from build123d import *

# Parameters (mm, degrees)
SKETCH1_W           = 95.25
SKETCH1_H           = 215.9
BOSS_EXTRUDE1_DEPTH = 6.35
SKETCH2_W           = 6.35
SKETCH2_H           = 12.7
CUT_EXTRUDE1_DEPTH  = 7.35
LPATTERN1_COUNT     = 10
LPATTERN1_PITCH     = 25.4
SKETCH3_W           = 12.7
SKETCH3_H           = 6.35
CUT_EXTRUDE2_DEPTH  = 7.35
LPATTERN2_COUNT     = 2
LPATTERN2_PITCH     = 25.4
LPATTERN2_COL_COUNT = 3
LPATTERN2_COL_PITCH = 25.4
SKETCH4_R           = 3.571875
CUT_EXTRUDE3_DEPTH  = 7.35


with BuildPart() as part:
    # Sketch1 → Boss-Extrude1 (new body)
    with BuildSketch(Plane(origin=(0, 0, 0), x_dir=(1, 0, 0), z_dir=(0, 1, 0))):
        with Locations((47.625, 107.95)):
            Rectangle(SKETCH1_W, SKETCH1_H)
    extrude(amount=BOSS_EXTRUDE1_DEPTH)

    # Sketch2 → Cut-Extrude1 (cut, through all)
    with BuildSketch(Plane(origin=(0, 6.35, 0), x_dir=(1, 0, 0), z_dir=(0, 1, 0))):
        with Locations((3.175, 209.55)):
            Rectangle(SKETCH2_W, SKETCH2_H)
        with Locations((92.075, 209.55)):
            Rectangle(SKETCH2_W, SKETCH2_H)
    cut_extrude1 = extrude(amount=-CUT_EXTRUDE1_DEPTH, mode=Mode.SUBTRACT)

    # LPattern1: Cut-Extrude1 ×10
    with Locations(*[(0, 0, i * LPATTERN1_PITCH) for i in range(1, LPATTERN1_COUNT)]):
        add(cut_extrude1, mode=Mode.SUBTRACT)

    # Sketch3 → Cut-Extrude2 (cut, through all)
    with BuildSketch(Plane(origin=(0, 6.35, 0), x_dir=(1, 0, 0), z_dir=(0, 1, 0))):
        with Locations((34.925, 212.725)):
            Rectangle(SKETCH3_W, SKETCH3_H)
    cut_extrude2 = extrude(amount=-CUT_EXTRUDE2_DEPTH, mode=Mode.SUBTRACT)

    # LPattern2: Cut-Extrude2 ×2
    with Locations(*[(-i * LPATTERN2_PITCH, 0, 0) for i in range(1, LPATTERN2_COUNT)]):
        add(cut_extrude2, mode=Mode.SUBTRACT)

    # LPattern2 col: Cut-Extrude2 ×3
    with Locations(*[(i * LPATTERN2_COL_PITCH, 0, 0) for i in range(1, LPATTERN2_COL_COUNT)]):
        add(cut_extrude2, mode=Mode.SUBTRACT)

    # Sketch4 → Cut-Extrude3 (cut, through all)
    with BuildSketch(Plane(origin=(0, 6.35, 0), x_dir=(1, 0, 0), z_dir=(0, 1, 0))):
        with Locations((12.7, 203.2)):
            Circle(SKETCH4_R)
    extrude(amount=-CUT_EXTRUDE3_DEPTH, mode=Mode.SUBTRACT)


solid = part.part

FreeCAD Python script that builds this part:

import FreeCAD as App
import Part
import Sketcher
Q = App.Units.Quantity

doc = App.newDocument("Part")
body = doc.addObject("PartDesign::Body", "Body")

# Sketch on XZ plane
sketch1 = doc.addObject("Sketcher::SketchObject", "Sketch")
body.addObject(sketch1)
sketch1.AttachmentSupport = (doc.XZ_Plane, [""])
sketch1.MapMode = "FlatFace"
sketch1.addGeometry([
    Part.LineSegment(App.Vector(0, -215.9, 0), App.Vector(0, 0, 0)),
    Part.LineSegment(App.Vector(0, 0, 0), App.Vector(95.25, 0, 0)),
    Part.LineSegment(App.Vector(95.25, 0, 0), App.Vector(95.25, -215.9, 0)),
    Part.LineSegment(App.Vector(95.25, -215.9, 0), App.Vector(0, -215.9, 0)),
], False)
sketch1.addConstraint([
    Sketcher.Constraint("Coincident", 0, 2, 1, 1),
    Sketcher.Constraint("Coincident", 1, 2, 2, 1),
    Sketcher.Constraint("Coincident", 2, 2, 3, 1),
    Sketcher.Constraint("Coincident", 3, 2, 0, 1),
    Sketcher.Constraint("Vertical", 0),
    Sketcher.Constraint("Horizontal", 1),
    Sketcher.Constraint("Vertical", 2),
    Sketcher.Constraint("Horizontal", 3),
    Sketcher.Constraint("Coincident", 0, 2, -1, 1),
    Sketcher.Constraint("DistanceY", 0, 1, 0, 2, Q("8.5 in")),
    Sketcher.Constraint("DistanceX", 1, 1, 1, 2, Q("3.75 in")),
])
pad1 = doc.addObject("PartDesign::Pad", "Pad")
body.addObject(pad1)
pad1.Profile = sketch1
pad1.Length = Q("0.25 in")
pad1.Reversed = True

# Sketch on XZ plane
sketch2 = doc.addObject("Sketcher::SketchObject", "Sketch001")
body.addObject(sketch2)
sketch2.AttachmentSupport = (doc.XZ_Plane, [""])
sketch2.MapMode = "FlatFace"
sketch2.AttachmentOffset = App.Placement(App.Vector(0, 0, -0.25 * 25.4), App.Rotation())
sketch2.addGeometry([
    Part.LineSegment(App.Vector(0, -215.9, 0), App.Vector(0, -203.2, 0)),  # 0
    Part.LineSegment(App.Vector(0, -203.2, 0), App.Vector(6.35, -203.2, 0)),  # 1
    Part.LineSegment(App.Vector(6.35, -203.2, 0), App.Vector(6.35, -215.9, 0)),  # 2
    Part.LineSegment(App.Vector(6.35, -215.9, 0), App.Vector(0, -215.9, 0)),  # 3
    Part.LineSegment(App.Vector(88.9, -215.9, 0), App.Vector(88.9, -203.2, 0)),  # 4
    Part.LineSegment(App.Vector(88.9, -203.2, 0), App.Vector(95.25, -203.2, 0)),  # 5
    Part.LineSegment(App.Vector(95.25, -203.2, 0), App.Vector(95.25, -215.9, 0)),  # 6
    Part.LineSegment(App.Vector(95.25, -215.9, 0), App.Vector(88.9, -215.9, 0)),  # 7
], False)
sketch2.addConstraint([
    Sketcher.Constraint("Coincident", 0, 2, 1, 1),
    Sketcher.Constraint("Coincident", 1, 2, 2, 1),
    Sketcher.Constraint("Coincident", 2, 2, 3, 1),
    Sketcher.Constraint("Coincident", 3, 2, 0, 1),
    Sketcher.Constraint("Coincident", 4, 2, 5, 1),
    Sketcher.Constraint("Coincident", 5, 2, 6, 1),
    Sketcher.Constraint("Coincident", 6, 2, 7, 1),
    Sketcher.Constraint("Coincident", 7, 2, 4, 1),
    Sketcher.Constraint("Vertical", 0),
    Sketcher.Constraint("Horizontal", 1),
    Sketcher.Constraint("Vertical", 2),
    Sketcher.Constraint("Horizontal", 3),
    Sketcher.Constraint("Vertical", 4),
    Sketcher.Constraint("Horizontal", 5),
    Sketcher.Constraint("Vertical", 6),
    Sketcher.Constraint("Horizontal", 7),
    Sketcher.Constraint("PointOnObject", 0, 2, -2),
    Sketcher.Constraint("Horizontal", 1, 2, 4, 2),
    Sketcher.Constraint("Horizontal", 3, 2, 6, 2),
    Sketcher.Constraint("Equal", 3, 5),
    Sketcher.Constraint("DistanceY", 0, 1, 0, 2, Q("0.5 in")),
    Sketcher.Constraint("DistanceY", 0, 2, -1, 1, Q("8 in")),
    Sketcher.Constraint("DistanceX", 1, 1, 1, 2, Q("0.25 in")),
    Sketcher.Constraint("DistanceX", -1, 1, 4, 2, Q("3.5 in")),
])
pocket1 = doc.addObject("PartDesign::Pocket", "Pocket")
body.addObject(pocket1)
pocket1.Profile = sketch2
pocket1.Type = "ThroughAll"
pocket1.Reversed = True
doc.recompute()

linearpattern = doc.addObject("PartDesign::LinearPattern", "LinearPattern")
body.addObject(linearpattern)
linearpattern.Originals = [pocket1]
linearpattern.Direction = (doc.Z_Axis, [""])
linearpattern.Mode = "offset"
linearpattern.Offset = Q("1 in")
linearpattern.Occurrences = 10
body.Tip = linearpattern

# Sketch on XZ plane
sketch3 = doc.addObject("Sketcher::SketchObject", "Sketch002")
body.addObject(sketch3)
sketch3.AttachmentSupport = (doc.XZ_Plane, [""])
sketch3.MapMode = "FlatFace"
sketch3.AttachmentOffset = App.Placement(App.Vector(0, 0, -0.25 * 25.4), App.Rotation())
sketch3.addGeometry([
    Part.LineSegment(App.Vector(28.575, -215.9, 0), App.Vector(28.575, -209.55, 0)),
    Part.LineSegment(App.Vector(28.575, -209.55, 0), App.Vector(41.275, -209.55, 0)),
    Part.LineSegment(App.Vector(41.275, -209.55, 0), App.Vector(41.275, -215.9, 0)),
    Part.LineSegment(App.Vector(41.275, -215.9, 0), App.Vector(28.575, -215.9, 0)),
], False)
sketch3.addConstraint([
    Sketcher.Constraint("Coincident", 0, 2, 1, 1),
    Sketcher.Constraint("Coincident", 1, 2, 2, 1),
    Sketcher.Constraint("Coincident", 2, 2, 3, 1),
    Sketcher.Constraint("Coincident", 3, 2, 0, 1),
    Sketcher.Constraint("Vertical", 0),
    Sketcher.Constraint("Horizontal", 1),
    Sketcher.Constraint("Vertical", 2),
    Sketcher.Constraint("Horizontal", 3),
    Sketcher.Constraint("DistanceX", 1, 1, 1, 2, Q("0.5 in")),
    Sketcher.Constraint("DistanceY", 0, 1, 0, 2, Q("0.25 in")),
    Sketcher.Constraint("DistanceY", 2, 2, -1, 1, Q("8.5 in")),
    Sketcher.Constraint("DistanceX", -1, 1, 0, 2, Q("1.125 in")),
])
pocket2 = doc.addObject("PartDesign::Pocket", "Pocket001")
body.addObject(pocket2)
pocket2.Profile = sketch3
pocket2.Type = "ThroughAll"
pocket2.Reversed = True
doc.recompute()

linearpattern2 = doc.addObject("PartDesign::LinearPattern", "LinearPattern001")
body.addObject(linearpattern2)
linearpattern2.Originals = [pocket2]
linearpattern2.Direction = (doc.X_Axis, [""])
linearpattern2.Mode = "offset"
linearpattern2.Offset = Q("1 in")
linearpattern2.Occurrences = 2
linearpattern2.Reversed = True
body.Tip = linearpattern2
doc.recompute()

linearpattern3 = doc.addObject("PartDesign::LinearPattern", "LinearPattern002")
body.addObject(linearpattern3)
linearpattern3.Originals = [pocket2]
linearpattern3.Direction = (doc.X_Axis, [""])
linearpattern3.Mode = "offset"
linearpattern3.Offset = Q("1 in")
linearpattern3.Occurrences = 3
body.Tip = linearpattern3

# Sketch on XZ plane
sketch4 = doc.addObject("Sketcher::SketchObject", "Sketch003")
body.addObject(sketch4)
sketch4.AttachmentSupport = (doc.XZ_Plane, [""])
sketch4.MapMode = "FlatFace"
sketch4.AttachmentOffset = App.Placement(App.Vector(0, 0, -0.25 * 25.4), App.Rotation())
sketch4.addGeometry(Part.Circle(App.Vector(12.7, -203.2, 0), App.Vector(0, 0, 1), 3.571875), False)
sketch4.addConstraint([
    Sketcher.Constraint("Diameter", 0, Q("0.28125 in")),
    Sketcher.Constraint("DistanceY", 0, 3, -1, 1, Q("8 in")),
    Sketcher.Constraint("DistanceX", -1, 1, 0, 3, Q("0.5 in")),
])
pocket3 = doc.addObject("PartDesign::Pocket", "Pocket002")
body.addObject(pocket3)
pocket3.Profile = sketch4
pocket3.Type = "ThroughAll"
pocket3.Reversed = True

doc.recompute()
